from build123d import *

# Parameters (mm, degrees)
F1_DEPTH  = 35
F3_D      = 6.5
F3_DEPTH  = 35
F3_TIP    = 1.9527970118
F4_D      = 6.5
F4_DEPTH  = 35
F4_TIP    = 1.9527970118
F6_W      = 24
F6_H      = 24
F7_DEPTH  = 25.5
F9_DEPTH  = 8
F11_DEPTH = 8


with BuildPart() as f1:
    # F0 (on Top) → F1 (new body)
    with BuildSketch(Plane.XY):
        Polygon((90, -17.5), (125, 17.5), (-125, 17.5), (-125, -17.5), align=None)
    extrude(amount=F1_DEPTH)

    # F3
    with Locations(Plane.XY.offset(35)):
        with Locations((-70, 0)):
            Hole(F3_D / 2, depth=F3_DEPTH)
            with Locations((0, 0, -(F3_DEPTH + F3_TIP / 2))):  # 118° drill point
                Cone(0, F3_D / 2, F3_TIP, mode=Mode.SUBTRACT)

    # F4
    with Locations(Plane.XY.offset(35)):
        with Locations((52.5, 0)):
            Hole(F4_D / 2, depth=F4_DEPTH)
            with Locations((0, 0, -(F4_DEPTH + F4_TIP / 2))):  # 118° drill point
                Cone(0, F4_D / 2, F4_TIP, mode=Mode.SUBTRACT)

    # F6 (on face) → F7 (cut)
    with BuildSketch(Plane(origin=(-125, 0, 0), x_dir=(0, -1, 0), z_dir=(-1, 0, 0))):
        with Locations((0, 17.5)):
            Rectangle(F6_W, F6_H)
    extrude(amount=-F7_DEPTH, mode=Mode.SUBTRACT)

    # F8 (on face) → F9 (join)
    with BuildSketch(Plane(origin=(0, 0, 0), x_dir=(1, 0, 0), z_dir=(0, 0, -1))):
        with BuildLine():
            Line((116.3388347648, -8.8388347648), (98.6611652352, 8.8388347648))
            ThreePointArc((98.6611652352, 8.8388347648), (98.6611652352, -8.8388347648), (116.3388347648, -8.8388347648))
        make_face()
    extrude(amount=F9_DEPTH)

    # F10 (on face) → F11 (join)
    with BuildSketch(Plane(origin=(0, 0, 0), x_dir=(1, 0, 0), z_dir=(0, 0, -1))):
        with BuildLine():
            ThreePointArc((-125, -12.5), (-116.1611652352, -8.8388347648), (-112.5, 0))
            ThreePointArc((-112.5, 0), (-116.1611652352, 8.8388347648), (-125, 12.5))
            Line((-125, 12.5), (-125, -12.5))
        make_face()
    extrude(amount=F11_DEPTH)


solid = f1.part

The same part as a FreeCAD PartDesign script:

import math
import FreeCAD as App
import Part
import Sketcher
Q = App.Units.Quantity

doc = App.newDocument("Part")
body = doc.addObject("PartDesign::Body", "Body")

sketch1 = body.newObject("Sketcher::SketchObject", "Sketch")
sketch1.AttachmentSupport = (doc.getObject("XY_Plane"), [""])
sketch1.MapMode = "FlatFace"
sketch1.addGeometry(Part.LineSegment(App.Vector(90, -18, 0), App.Vector(125, 18, 0)), False)
sketch1.addGeometry(Part.LineSegment(App.Vector(125, 18, 0), App.Vector(-125, 18, 0)), False)
sketch1.addGeometry(Part.LineSegment(App.Vector(-125, 18, 0), App.Vector(-125, -18, 0)), False)
sketch1.addGeometry(Part.LineSegment(App.Vector(-125, -18, 0), App.Vector(90, -18, 0)), False)
sketch1.addConstraint(Sketcher.Constraint("Coincident", 0, 2, 1, 1))
sketch1.addConstraint(Sketcher.Constraint("Coincident", 1, 2, 2, 1))
sketch1.addConstraint(Sketcher.Constraint("Coincident", 2, 2, 3, 1))
sketch1.addConstraint(Sketcher.Constraint("Coincident", 3, 2, 0, 1))
sketch1.addConstraint(Sketcher.Constraint("Horizontal", 1))
sketch1.addConstraint(Sketcher.Constraint("Vertical", 2))
sketch1.addConstraint(Sketcher.Constraint("Horizontal", 3))
sketch1.addConstraint(Sketcher.Constraint("Symmetric", 0, 2, 2, 2, -1, 1))
sketch1.addConstraint(Sketcher.Constraint("DistanceX", 1, 2, 1, 1, Q("250 mm")))
sketch1.addConstraint(Sketcher.Constraint("DistanceX", 3, 1, 3, 2, Q("215 mm")))
sketch1.addConstraint(Sketcher.Constraint("DistanceY", 2, 2, 2, 1, Q("35 mm")))
pad1 = body.newObject("PartDesign::Pad", "Pad")
pad1.Profile = sketch1
pad1.Length = 35

sketch2 = body.newObject("Sketcher::SketchObject", "Sketch001")
sketch2.AttachmentSupport = (doc.getObject("XY_Plane"), [""])
sketch2.MapMode = "FlatFace"
sketch2.AttachmentOffset = App.Placement(App.Vector(0, 0, 35), App.Rotation())
sketch2.addGeometry(Part.Circle(App.Vector(-70, 0, 0), App.Vector(0, 0, 1), 3.2), False)
sketch2.addConstraint(Sketcher.Constraint("PointOnObject", 0, 3, -1))
sketch2.addConstraint(Sketcher.Constraint("Diameter", 0, Q("6.5 mm")))
sketch2.addConstraint(Sketcher.Constraint("DistanceX", 0, 3, -1, 1, Q("70 mm")))
doc.recompute()
hole = body.newObject("PartDesign::Hole", "Hole")
hole.Profile = sketch2
hole.ThreadType = "None"
hole.Diameter = 6.5
hole.DepthType = "Dimension"
hole.Depth = 35
hole.DrillPoint = "Angled"
hole.DrillPointAngle = 118

sketch3 = body.newObject("Sketcher::SketchObject", "Sketch002")
sketch3.AttachmentSupport = (doc.getObject("XY_Plane"), [""])
sketch3.MapMode = "FlatFace"
sketch3.AttachmentOffset = App.Placement(App.Vector(0, 0, 35), App.Rotation())
sketch3.addGeometry(Part.Circle(App.Vector(52.5, 0, 0), App.Vector(0, 0, 1), 3.2), False)
sketch3.addConstraint(Sketcher.Constraint("PointOnObject", 0, 3, -1))
sketch3.addConstraint(Sketcher.Constraint("Diameter", 0, Q("6.5 mm")))
sketch3.addConstraint(Sketcher.Constraint("DistanceX", -1, 1, 0, 3, Q("52.5 mm")))
doc.recompute()
hole2 = body.newObject("PartDesign::Hole", "Hole001")
hole2.Profile = sketch3
hole2.ThreadType = "None"
hole2.Diameter = 6.5
hole2.DepthType = "Dimension"
hole2.Depth = 35
hole2.DrillPoint = "Angled"
hole2.DrillPointAngle = 118

sketch4 = body.newObject("Sketcher::SketchObject", "Sketch003")
sketch4.AttachmentSupport = (doc.getObject("YZ_Plane"), [""])
sketch4.MapMode = "FlatFace"
sketch4.AttachmentOffset = App.Placement(App.Vector(0, 0, -125), App.Rotation())
sketch4.addGeometry(Part.LineSegment(App.Vector(12, 30, 0), App.Vector(12, 6, 0)), False)
sketch4.addGeometry(Part.LineSegment(App.Vector(12, 6, 0), App.Vector(-12, 6, 0)), False)
sketch4.addGeometry(Part.LineSegment(App.Vector(-12, 6, 0), App.Vector(-12, 30, 0)), False)
sketch4.addGeometry(Part.LineSegment(App.Vector(-12, 30, 0), App.Vector(12, 30, 0)), False)
sketch4.addConstraint(Sketcher.Constraint("Coincident", 0, 2, 1, 1))
sketch4.addConstraint(Sketcher.Constraint("Coincident", 1, 2, 2, 1))
sketch4.addConstraint(Sketcher.Constraint("Coincident", 2, 2, 3, 1))
sketch4.addConstraint(Sketcher.Constraint("Coincident", 3, 2, 0, 1))
sketch4.addConstraint(Sketcher.Constraint("Vertical", 0))
sketch4.addConstraint(Sketcher.Constraint("Horizontal", 1))
sketch4.addConstraint(Sketcher.Constraint("Vertical", 2))
sketch4.addConstraint(Sketcher.Constraint("Horizontal", 3))
sketch4.addConstraint(Sketcher.Constraint("Equal", 3, 0))
sketch4.addConstraint(Sketcher.Constraint("DistanceX", 1, 2, 1, 1, Q("24 mm")))
sketch4.addConstraint(Sketcher.Constraint("DistanceX", -1, 1, 0, 2, Q("12 mm")))
sketch4.addConstraint(Sketcher.Constraint("DistanceY", -1, 1, 0, 2, Q("5.5 mm")))
pocket1 = body.newObject("PartDesign::Pocket", "Pocket")
pocket1.Profile = sketch4
pocket1.Length = 25.5
pocket1.Reversed = True

sketch5 = body.newObject("Sketcher::SketchObject", "Sketch004")
sketch5.AttachmentSupport = (doc.getObject("XY_Plane"), [""])
sketch5.MapMode = "FlatFace"
sketch5.addGeometry(Part.LineSegment(App.Vector(116, 9, 0), App.Vector(99, -9, 0)), False)
sketch5.addGeometry(Part.ArcOfCircle(Part.Circle(App.Vector(108, 0, 0), App.Vector(0, 0, 1), 12), math.radians(45), math.radians(225)), False)
sketch5.addConstraint(Sketcher.Constraint("Coincident", 0, 1, 1, 1))
sketch5.addConstraint(Sketcher.Constraint("Coincident", 1, 2, 0, 2))
sketch5.addConstraint(Sketcher.Constraint("PointOnObject", 1, 3, -1))
sketch5.addConstraint(Sketcher.Constraint("Radius", 1, Q("12.5 mm")))
sketch5.addConstraint(Sketcher.Constraint("Angle", 0, Q("-135 deg")))
sketch5.addConstraint(Sketcher.Constraint("DistanceX", -1, 1, 1, 3, Q("107.5 mm")))
sketch5.addConstraint(Sketcher.Constraint("DistanceX", -1, 1, 0, 1, Q("116.338835 mm")))
pad2 = body.newObject("PartDesign::Pad", "Pad001")
pad2.Profile = sketch5
pad2.Length = 8
pad2.Reversed = True

sketch6 = body.newObject("Sketcher::SketchObject", "Sketch005")
sketch6.AttachmentSupport = (doc.getObject("XY_Plane"), [""])
sketch6.MapMode = "FlatFace"
sketch6.addGeometry(Part.ArcOfCircle(Part.Circle(App.Vector(-125, 0, 0), App.Vector(0, 0, 1), 12), math.radians(0), math.radians(90)), False)
sketch6.addGeometry(Part.ArcOfCircle(Part.Circle(App.Vector(-125, 0, 0), App.Vector(0, 0, 1), 12), math.radians(-90), math.radians(0)), False)
sketch6.addGeometry(Part.LineSegment(App.Vector(-125, -12, 0), App.Vector(-125, 12, 0)), False)
sketch6.addConstraint(Sketcher.Constraint("Tangent", 0, 1, 1, 2))
sketch6.addConstraint(Sketcher.Constraint("Coincident", 1, 1, 2, 1))
sketch6.addConstraint(Sketcher.Constraint("Coincident", 2, 2, 0, 2))
sketch6.addConstraint(Sketcher.Constraint("Vertical", 2))
sketch6.addConstraint(Sketcher.Constraint("Equal", 0, 1))
sketch6.addConstraint(Sketcher.Constraint("PointOnObject", 0, 3, -1))
sketch6.addConstraint(Sketcher.Constraint("PointOnObject", 0, 1, -1))
sketch6.addConstraint(Sketcher.Constraint("Vertical", 0, 3, 1, 1))
sketch6.addConstraint(Sketcher.Constraint("Radius", 0, Q("12.5 mm")))
sketch6.addConstraint(Sketcher.Constraint("DistanceX", 0, 3, -1, 1, Q("125 mm")))
pad3 = body.newObject("PartDesign::Pad", "Pad002")
pad3.Profile = sketch6
pad3.Length = 8
pad3.Reversed = True

doc.recompute()
